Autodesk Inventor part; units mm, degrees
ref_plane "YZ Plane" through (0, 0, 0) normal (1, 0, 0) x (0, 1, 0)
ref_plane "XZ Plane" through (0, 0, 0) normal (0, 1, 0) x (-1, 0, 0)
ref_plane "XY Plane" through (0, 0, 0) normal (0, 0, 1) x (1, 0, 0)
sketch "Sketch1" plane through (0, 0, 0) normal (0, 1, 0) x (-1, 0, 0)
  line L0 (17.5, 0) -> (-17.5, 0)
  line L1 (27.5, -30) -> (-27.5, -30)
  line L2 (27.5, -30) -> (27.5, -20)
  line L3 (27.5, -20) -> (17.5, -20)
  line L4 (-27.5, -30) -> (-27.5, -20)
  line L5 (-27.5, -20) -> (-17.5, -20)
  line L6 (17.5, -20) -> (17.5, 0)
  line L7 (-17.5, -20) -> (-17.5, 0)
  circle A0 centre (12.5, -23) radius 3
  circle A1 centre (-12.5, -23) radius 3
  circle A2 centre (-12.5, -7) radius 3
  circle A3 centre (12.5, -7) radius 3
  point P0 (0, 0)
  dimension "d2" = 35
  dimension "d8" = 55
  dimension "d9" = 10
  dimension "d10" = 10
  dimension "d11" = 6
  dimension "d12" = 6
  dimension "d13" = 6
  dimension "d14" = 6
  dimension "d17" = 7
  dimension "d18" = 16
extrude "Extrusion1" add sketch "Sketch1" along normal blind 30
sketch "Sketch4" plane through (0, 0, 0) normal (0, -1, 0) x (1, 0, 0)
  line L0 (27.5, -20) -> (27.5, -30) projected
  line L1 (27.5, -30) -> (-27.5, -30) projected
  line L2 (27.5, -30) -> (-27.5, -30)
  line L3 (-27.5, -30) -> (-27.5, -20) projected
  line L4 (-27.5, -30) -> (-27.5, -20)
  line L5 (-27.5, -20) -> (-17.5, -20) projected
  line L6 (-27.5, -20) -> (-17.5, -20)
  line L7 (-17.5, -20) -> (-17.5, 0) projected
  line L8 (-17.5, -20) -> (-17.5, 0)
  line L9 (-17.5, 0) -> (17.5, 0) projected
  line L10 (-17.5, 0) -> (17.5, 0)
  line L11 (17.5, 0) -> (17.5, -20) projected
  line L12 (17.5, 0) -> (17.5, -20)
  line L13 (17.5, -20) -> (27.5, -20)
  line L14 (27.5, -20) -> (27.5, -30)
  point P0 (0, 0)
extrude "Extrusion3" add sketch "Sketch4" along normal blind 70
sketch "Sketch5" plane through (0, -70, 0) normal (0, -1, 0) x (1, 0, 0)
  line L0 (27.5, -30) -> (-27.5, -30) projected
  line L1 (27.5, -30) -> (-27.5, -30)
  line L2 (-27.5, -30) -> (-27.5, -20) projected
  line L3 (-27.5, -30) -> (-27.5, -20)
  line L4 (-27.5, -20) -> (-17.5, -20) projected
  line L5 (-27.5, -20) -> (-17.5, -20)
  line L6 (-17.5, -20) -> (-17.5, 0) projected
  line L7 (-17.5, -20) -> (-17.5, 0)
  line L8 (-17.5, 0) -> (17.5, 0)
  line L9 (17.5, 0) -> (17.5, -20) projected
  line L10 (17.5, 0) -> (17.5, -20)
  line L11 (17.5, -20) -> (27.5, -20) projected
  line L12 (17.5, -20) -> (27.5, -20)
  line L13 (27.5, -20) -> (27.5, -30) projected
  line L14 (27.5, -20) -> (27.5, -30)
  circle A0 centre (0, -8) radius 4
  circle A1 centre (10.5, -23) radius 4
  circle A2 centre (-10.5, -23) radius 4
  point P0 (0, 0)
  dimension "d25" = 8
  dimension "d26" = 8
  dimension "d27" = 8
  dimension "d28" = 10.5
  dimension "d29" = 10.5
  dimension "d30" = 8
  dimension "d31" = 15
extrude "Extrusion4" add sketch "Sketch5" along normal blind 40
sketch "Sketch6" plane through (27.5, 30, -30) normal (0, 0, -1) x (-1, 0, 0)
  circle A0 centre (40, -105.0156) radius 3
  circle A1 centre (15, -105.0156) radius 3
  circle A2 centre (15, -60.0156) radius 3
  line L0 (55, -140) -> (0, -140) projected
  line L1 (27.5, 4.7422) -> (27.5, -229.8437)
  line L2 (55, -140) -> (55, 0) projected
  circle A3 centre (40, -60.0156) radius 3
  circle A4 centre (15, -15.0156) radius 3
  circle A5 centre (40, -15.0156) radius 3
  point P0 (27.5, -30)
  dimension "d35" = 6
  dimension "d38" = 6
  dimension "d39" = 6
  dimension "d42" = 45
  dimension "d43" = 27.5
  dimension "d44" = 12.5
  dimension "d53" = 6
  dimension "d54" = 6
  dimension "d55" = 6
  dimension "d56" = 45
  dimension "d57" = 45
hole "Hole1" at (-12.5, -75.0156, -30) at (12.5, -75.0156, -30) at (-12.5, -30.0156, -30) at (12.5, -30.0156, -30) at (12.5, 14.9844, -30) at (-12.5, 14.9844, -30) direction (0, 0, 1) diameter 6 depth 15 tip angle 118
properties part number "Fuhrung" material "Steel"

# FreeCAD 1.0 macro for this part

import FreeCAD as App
import Part
import Sketcher
from FreeCAD import Vector


def add_polygon(sketch, points):
    """Adds a closed chain of lines whose ends are joined by coincident constraints."""
    first, n = sketch.GeometryCount, len(points)
    for a, b in zip(points, points[1:] + points[:1]):
        sketch.addGeometry(Part.LineSegment(App.Vector(*a, 0), App.Vector(*b, 0)), False)
    for i in range(n):
        sketch.addConstraint(Sketcher.Constraint("Coincident", first + i, 2, first + (i + 1) % n, 1))

doc = App.newDocument("Part")
body = doc.addObject("PartDesign::Body", "Body")

sketch1 = body.newObject("Sketcher::SketchObject", "Sketch")
sketch1.AttachmentSupport = (doc.getObject("XZ_Plane"), [""])
sketch1.MapMode = "FlatFace"
add_polygon(sketch1, [(-17.5, -20), (-17.5, 0), (17.5, 0), (17.5, -20), (27.5, -20), (27.5, -30), (-27.5, -30), (-27.5, -20)])
sketch1.addGeometry(Part.Circle(Vector(12.5, -23, 0), Vector(0, 0, 1), 3), False)
sketch1.addGeometry(Part.Circle(Vector(-12.5, -23, 0), Vector(0, 0, 1), 3), False)
sketch1.addGeometry(Part.Circle(Vector(12.5, -7, 0), Vector(0, 0, 1), 3), False)
sketch1.addGeometry(Part.Circle(Vector(-12.5, -7, 0), Vector(0, 0, 1), 3), False)
sketch1.addConstraint(Sketcher.Constraint("Vertical", 0))
sketch1.addConstraint(Sketcher.Constraint("Horizontal", 1))
sketch1.addConstraint(Sketcher.Constraint("Vertical", 2))
sketch1.addConstraint(Sketcher.Constraint("Horizontal", 3))
sketch1.addConstraint(Sketcher.Constraint("Vertical", 4))
sketch1.addConstraint(Sketcher.Constraint("Horizontal", 5))
sketch1.addConstraint(Sketcher.Constraint("Vertical", 6))
sketch1.addConstraint(Sketcher.Constraint("Horizontal", 7))
sketch1.addConstraint(Sketcher.Constraint("Equal", 8, 9))
sketch1.addConstraint(Sketcher.Constraint("Equal", 9, 10))
sketch1.addConstraint(Sketcher.Constraint("Equal", 10, 11))
sketch1.addConstraint(Sketcher.Constraint("Symmetric", 0, 2, 1, 2, -1, 1))
sketch1.addConstraint(Sketcher.Constraint("Symmetric", 8, 3, 9, 3, -2))
sketch1.addConstraint(Sketcher.Constraint("Symmetric", 10, 3, 11, 3, -2))
sketch1.addConstraint(Sketcher.Constraint("Symmetric", 3, 2, 6, 2, -2))
sketch1.addConstraint(Sketcher.Constraint("Vertical", 8, 3, 10, 3))
sketch1.addConstraint(Sketcher.Constraint("Equal", 7, 4))
sketch1.addConstraint(Sketcher.Constraint("Diameter", 8, 6.0))
sketch1.addConstraint(Sketcher.Constraint("DistanceX", 1, 1, 1, 2, 35.0))
sketch1.addConstraint(Sketcher.Constraint("DistanceX", 3, 1, 3, 2, 10.0))
sketch1.addConstraint(Sketcher.Constraint("DistanceY", 10, 3, -1, 1, 7.0))
sketch1.addConstraint(Sketcher.Constraint("DistanceY", 8, 3, 10, 3, 16.0))
sketch1.addConstraint(Sketcher.Constraint("DistanceY", 4, 2, 8, 3, 7.0))
sketch1.addConstraint(Sketcher.Constraint("DistanceX", 9, 3, 8, 3, 25.0))
pad1 = body.newObject("PartDesign::Pad", "Pad")
pad1.Profile = sketch1
pad1.Length = 30
pad1.Reversed = True

sketch2 = body.newObject("Sketcher::SketchObject", "Sketch001")
sketch2.AttachmentSupport = (doc.getObject("XZ_Plane"), [""])
sketch2.MapMode = "FlatFace"
add_polygon(sketch2, [(28, -30), (28, -20), (18, -20), (18, 0), (-18, 0), (-18, -20), (-28, -20), (-28, -30)])
sketch2.addConstraint(Sketcher.Constraint("Vertical", 0))
sketch2.addConstraint(Sketcher.Constraint("Horizontal", 1))
sketch2.addConstraint(Sketcher.Constraint("Vertical", 2))
sketch2.addConstraint(Sketcher.Constraint("Horizontal", 3))
sketch2.addConstraint(Sketcher.Constraint("Vertical", 4))
sketch2.addConstraint(Sketcher.Constraint("Horizontal", 5))
sketch2.addConstraint(Sketcher.Constraint("Vertical", 6))
sketch2.addConstraint(Sketcher.Constraint("Horizontal", 7))
sketch2.addConstraint(Sketcher.Constraint("Symmetric", 2, 2, 3, 2, -1, 1))
sketch2.addConstraint(Sketcher.Constraint("Symmetric", 0, 2, 5, 2, -2))
sketch2.addConstraint(Sketcher.Constraint("Equal", 5, 0))
sketch2.addConstraint(Sketcher.Constraint("DistanceX", 1, 2, 1, 1, 10.0))
sketch2.addConstraint(Sketcher.Constraint("DistanceX", 3, 2, 3, 1, 35.0))
sketch2.addConstraint(Sketcher.Constraint("DistanceY", 2, 1, 2, 2, 20.0))
pad2 = body.newObject("PartDesign::Pad", "Pad001")
pad2.Profile = sketch2
pad2.Length = 70

sketch3 = body.newObject("Sketcher::SketchObject", "Sketch002")
sketch3.AttachmentSupport = (doc.getObject("XZ_Plane"), [""])
sketch3.MapMode = "FlatFace"
sketch3.AttachmentOffset = App.Placement(Vector(0, 0, 70), App.Rotation())
add_polygon(sketch3, [(-27.5, -30), (27.5, -30), (27.5, -20), (17.5, -20), (17.5, 0), (-17.5, 0), (-17.5, -20), (-27.5, -20)])
sketch3.addGeometry(Part.Circle(Vector(-10.5, -23, 0), Vector(0, 0, 1), 4), False)
sketch3.addGeometry(Part.Circle(Vector(10.5, -23, 0), Vector(0, 0, 1), 4), False)
sketch3.addGeometry(Part.Circle(Vector(0, -8, 0), Vector(0, 0, 1), 4), False)
sketch3.addConstraint(Sketcher.Constraint("Horizontal", 0))
sketch3.addConstraint(Sketcher.Constraint("Vertical", 1))
sketch3.addConstraint(Sketcher.Constraint("Horizontal", 2))
sketch3.addConstraint(Sketcher.Constraint("Vertical", 3))
sketch3.addConstraint(Sketcher.Constraint("Horizontal", 4))
sketch3.addConstraint(Sketcher.Constraint("Vertical", 5))
sketch3.addConstraint(Sketcher.Constraint("Horizontal", 6))
sketch3.addConstraint(Sketcher.Constraint("Vertical", 7))
sketch3.addConstraint(Sketcher.Constraint("Equal", 8, 9))
sketch3.addConstraint(Sketcher.Constraint("Equal", 9, 10))
sketch3.addConstraint(Sketcher.Constraint("Symmetric", 3, 2, 4, 2, -1, 1))
sketch3.addConstraint(Sketcher.Constraint("Symmetric", 8, 3, 9, 3, -2))
sketch3.addConstraint(Sketcher.Constraint("Symmetric", 1, 2, 6, 2, -2))
sketch3.addConstraint(Sketcher.Constraint("PointOnObject", 10, 3, -2))
sketch3.addConstraint(Sketcher.Constraint("Equal", 6, 1))
sketch3.addConstraint(Sketcher.Constraint("Diameter", 8, 8.0))
sketch3.addConstraint(Sketcher.Constraint("DistanceY", 10, 3, -1, 1, 8.0))
sketch3.addConstraint(Sketcher.Constraint("DistanceY", 8, 3, 10, 3, 15.0))
sketch3.addConstraint(Sketcher.Constraint("DistanceX", 8, 3, -1, 1, 10.5))
sketch3.addConstraint(Sketcher.Constraint("DistanceX", 0, 1, 0, 2, 55.0))
sketch3.addConstraint(Sketcher.Constraint("DistanceX", 2, 2, 2, 1, 10.0))
sketch3.addConstraint(Sketcher.Constraint("DistanceY", 3, 1, 3, 2, 20.0))
pad3 = body.newObject("PartDesign::Pad", "Pad002")
pad3.Profile = sketch3
pad3.Length = 40

sketch4 = body.newObject("Sketcher::SketchObject", "Sketch003")
sketch4.AttachmentSupport = (doc.getObject("XY_Plane"), [""])
sketch4.MapMode = "FlatFace"
sketch4.AttachmentOffset = App.Placement(Vector(0, 0, -30), App.Rotation())
sketch4.addGeometry(Part.Circle(Vector(-12.5, -75, 0), Vector(0, 0, 1), 3), False)
sketch4.addGeometry(Part.Circle(Vector(12.5, -75, 0), Vector(0, 0, 1), 3), False)
sketch4.addGeometry(Part.Circle(Vector(-12.5, -30, 0), Vector(0, 0, 1), 3), False)
sketch4.addGeometry(Part.Circle(Vector(12.5, -30, 0), Vector(0, 0, 1), 3), False)
sketch4.addGeometry(Part.Circle(Vector(12.5, 15, 0), Vector(0, 0, 1), 3), False)
sketch4.addGeometry(Part.Circle(Vector(-12.5, 15, 0), Vector(0, 0, 1), 3), False)
sketch4.addConstraint(Sketcher.Constraint("Equal", 0, 1))
sketch4.addConstraint(Sketcher.Constraint("Equal", 1, 2))
sketch4.addConstraint(Sketcher.Constraint("Equal", 2, 3))
sketch4.addConstraint(Sketcher.Constraint("Equal", 3, 4))
sketch4.addConstraint(Sketcher.Constraint("Equal", 4, 5))
sketch4.addConstraint(Sketcher.Constraint("Symmetric", 0, 3, 1, 3, -2))
sketch4.addConstraint(Sketcher.Constraint("Symmetric", 2, 3, 3, 3, -2))
sketch4.addConstraint(Sketcher.Constraint("Symmetric", 4, 3, 5, 3, -2))
sketch4.addConstraint(Sketcher.Constraint("Vertical", 0, 3, 2, 3))
sketch4.addConstraint(Sketcher.Constraint("Vertical", 3, 3, 4, 3))
sketch4.addConstraint(Sketcher.Constraint("Diameter", 0, 6.0))
sketch4.addConstraint(Sketcher.Constraint("DistanceX", 0, 3, 1, 3, 25.0))
sketch4.addConstraint(Sketcher.Constraint("DistanceY", 0, 3, 2, 3, 45.0))
sketch4.addConstraint(Sketcher.Constraint("DistanceY", 3, 3, 4, 3, 45.0))
sketch4.addConstraint(Sketcher.Constraint("DistanceY", 0, 3, -1, 1, 75.0156))
doc.recompute()
hole = body.newObject("PartDesign::Hole", "Hole")
hole.Profile = sketch4
hole.ThreadType = "None"
hole.Diameter = 6
hole.DepthType = "Dimension"
hole.Depth = 15
hole.DrillPoint = "Angled"
hole.DrillPointAngle = 118
hole.Reversed = True

doc.recompute()
